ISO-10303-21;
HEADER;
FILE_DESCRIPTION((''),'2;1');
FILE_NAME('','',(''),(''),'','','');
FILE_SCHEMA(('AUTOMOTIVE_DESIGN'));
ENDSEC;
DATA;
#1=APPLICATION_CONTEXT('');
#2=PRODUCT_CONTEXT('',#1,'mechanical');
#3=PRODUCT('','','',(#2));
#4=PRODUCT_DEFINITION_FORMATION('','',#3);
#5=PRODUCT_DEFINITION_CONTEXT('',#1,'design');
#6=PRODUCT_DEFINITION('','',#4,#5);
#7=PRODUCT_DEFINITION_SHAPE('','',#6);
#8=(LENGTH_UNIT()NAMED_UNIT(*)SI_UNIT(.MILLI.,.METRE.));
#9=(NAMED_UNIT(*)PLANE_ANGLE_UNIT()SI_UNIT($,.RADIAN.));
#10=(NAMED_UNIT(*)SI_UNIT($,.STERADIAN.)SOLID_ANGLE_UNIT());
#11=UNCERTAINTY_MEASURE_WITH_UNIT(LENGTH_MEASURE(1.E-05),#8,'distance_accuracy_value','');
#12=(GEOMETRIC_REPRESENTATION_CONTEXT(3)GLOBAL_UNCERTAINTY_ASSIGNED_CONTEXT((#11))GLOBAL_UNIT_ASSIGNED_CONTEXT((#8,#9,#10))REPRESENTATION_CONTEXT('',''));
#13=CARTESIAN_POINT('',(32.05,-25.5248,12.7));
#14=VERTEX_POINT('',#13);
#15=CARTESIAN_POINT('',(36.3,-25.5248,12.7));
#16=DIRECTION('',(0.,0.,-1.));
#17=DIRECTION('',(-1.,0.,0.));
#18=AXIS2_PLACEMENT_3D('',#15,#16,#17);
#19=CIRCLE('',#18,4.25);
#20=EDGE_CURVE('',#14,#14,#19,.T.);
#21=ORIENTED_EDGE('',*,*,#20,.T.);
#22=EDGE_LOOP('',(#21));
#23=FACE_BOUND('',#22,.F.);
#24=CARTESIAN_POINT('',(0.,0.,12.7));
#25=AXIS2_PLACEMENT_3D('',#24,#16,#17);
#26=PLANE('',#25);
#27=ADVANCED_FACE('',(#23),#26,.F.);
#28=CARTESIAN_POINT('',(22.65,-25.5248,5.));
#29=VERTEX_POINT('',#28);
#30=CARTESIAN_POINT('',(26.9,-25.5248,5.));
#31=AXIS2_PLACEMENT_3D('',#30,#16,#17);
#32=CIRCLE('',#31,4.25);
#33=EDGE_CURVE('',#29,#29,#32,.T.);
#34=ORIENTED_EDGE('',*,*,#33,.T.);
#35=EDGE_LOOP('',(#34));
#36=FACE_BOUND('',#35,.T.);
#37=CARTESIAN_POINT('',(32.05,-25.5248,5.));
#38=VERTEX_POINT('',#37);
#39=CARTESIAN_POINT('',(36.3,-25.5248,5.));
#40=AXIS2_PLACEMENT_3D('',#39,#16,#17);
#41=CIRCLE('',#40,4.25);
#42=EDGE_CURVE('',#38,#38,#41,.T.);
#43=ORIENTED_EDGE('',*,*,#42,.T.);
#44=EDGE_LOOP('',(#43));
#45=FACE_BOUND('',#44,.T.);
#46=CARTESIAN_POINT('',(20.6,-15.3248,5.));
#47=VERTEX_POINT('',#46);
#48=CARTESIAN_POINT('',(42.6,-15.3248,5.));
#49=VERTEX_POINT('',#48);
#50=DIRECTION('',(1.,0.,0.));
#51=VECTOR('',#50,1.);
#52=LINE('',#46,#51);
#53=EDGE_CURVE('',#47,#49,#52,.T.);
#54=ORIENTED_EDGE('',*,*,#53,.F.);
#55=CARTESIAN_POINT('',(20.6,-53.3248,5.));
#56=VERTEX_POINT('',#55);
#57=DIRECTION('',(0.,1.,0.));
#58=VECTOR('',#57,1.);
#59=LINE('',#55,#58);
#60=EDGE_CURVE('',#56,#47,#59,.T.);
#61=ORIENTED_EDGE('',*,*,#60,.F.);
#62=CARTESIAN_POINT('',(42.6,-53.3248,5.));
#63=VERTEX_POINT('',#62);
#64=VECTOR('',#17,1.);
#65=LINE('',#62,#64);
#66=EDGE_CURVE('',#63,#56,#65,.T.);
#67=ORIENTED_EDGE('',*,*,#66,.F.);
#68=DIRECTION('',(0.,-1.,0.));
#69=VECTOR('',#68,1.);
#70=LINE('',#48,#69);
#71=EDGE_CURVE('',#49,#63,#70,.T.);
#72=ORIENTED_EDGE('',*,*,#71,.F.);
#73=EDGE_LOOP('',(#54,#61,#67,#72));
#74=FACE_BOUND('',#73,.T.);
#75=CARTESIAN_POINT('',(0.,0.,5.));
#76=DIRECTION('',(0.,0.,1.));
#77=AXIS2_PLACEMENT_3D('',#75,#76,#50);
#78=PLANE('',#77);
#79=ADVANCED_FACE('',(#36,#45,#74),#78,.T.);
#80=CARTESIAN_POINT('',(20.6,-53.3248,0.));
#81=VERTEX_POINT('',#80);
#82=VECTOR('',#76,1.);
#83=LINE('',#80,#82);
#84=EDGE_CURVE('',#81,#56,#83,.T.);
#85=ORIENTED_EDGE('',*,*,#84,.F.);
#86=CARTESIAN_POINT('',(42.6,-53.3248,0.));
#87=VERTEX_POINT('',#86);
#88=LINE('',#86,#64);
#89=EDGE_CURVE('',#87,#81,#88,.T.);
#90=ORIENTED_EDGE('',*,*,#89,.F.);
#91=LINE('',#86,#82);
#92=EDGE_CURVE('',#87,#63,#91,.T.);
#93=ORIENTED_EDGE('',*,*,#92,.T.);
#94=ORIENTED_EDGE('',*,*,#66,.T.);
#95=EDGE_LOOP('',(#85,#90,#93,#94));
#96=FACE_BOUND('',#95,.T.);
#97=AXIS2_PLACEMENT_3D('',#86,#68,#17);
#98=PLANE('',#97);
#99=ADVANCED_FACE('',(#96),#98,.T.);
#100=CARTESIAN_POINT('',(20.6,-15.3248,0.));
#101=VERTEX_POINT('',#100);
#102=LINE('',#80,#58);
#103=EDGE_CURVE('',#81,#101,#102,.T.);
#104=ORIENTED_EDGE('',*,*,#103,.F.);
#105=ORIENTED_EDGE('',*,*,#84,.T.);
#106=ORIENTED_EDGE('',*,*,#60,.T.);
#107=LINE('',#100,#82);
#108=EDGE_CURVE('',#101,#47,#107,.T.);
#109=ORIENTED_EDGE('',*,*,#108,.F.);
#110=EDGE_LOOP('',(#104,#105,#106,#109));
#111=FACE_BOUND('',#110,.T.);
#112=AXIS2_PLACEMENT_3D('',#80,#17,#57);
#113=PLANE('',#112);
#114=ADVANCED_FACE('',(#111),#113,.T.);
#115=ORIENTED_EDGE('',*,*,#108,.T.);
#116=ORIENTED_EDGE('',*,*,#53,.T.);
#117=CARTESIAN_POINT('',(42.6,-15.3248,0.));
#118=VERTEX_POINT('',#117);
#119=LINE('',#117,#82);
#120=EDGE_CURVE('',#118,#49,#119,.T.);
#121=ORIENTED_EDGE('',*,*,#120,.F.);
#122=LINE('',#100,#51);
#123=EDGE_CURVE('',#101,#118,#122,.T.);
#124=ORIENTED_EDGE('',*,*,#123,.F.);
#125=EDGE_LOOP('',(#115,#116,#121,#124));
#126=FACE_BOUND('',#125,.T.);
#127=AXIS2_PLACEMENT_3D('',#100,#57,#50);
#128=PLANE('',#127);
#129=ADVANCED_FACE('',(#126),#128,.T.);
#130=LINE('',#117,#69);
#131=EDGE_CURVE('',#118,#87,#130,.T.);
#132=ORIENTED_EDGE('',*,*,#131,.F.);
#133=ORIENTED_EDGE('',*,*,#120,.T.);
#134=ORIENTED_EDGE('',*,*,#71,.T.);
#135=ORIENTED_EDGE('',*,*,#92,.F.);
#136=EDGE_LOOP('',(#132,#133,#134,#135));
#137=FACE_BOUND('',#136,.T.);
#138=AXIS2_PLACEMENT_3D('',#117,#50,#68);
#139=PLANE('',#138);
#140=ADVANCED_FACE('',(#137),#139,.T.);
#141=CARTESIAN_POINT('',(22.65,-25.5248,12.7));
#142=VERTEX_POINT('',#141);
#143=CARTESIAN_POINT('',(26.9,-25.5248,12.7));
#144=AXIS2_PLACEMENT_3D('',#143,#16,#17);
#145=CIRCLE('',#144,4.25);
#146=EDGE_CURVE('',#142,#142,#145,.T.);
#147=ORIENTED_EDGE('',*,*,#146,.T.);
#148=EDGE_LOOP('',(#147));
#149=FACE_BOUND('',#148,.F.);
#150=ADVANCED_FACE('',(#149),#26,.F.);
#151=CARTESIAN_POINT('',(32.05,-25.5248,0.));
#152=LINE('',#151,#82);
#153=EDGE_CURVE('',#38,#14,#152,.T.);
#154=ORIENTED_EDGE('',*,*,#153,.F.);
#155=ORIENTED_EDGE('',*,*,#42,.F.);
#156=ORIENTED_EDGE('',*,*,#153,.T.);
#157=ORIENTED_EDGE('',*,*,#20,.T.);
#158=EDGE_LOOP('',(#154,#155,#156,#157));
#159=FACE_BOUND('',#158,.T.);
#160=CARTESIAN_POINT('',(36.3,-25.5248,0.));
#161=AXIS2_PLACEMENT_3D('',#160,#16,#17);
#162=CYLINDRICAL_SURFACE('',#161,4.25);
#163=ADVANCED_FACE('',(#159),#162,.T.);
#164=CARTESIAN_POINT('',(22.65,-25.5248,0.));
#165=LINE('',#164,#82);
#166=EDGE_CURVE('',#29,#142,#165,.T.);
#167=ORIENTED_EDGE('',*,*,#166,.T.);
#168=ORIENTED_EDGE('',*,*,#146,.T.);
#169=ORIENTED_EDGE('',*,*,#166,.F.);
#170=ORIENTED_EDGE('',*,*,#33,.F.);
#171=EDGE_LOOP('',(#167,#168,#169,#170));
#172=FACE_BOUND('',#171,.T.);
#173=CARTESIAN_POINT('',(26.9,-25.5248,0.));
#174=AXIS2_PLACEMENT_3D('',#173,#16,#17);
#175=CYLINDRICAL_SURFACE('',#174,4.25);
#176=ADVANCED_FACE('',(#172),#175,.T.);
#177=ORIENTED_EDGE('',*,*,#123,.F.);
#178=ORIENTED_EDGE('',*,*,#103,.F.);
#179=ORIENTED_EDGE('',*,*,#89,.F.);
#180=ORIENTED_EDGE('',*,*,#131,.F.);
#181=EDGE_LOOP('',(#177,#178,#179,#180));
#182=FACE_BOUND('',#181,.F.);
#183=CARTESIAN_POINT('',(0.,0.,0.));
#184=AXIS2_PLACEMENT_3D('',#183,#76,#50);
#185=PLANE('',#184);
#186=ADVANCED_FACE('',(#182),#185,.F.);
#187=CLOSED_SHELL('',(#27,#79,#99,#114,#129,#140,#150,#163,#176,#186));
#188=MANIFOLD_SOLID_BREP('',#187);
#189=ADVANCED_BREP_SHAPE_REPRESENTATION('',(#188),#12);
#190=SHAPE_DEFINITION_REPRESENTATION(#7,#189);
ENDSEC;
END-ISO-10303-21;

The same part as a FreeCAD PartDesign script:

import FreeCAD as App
import Part
import Sketcher

doc = App.newDocument("Part")
params = doc.addObject("Spreadsheet::Sheet", "Params")
for row, (alias, value) in enumerate([
    ("sketch1_diameter", "8.5 mm"),
    ("sketch1_width", "22 mm"),
    ("sketch1_height", "38 mm"),
    ("pad1_length", "5 mm"),
    ("sketch2_diameter", "8.5 mm"),
    ("pad2_length", "12.7 mm"),
], start=1):
    params.set(f"A{row}", alias)
    params.set(f"B{row}", "=" + value)
    params.setAlias(f"B{row}", alias)

body = doc.addObject("PartDesign::Body", "Body")

# Sketch on XY plane
sketch1 = body.newObject("Sketcher::SketchObject", "Sketch")
sketch1.AttachmentSupport = (doc.getObject("XY_Plane"), [""])
sketch1.MapMode = "FlatFace"
sketch1.addGeometry(Part.LineSegment(App.Vector(42.6, -15.3, 0), App.Vector(20.6, -15.3, 0)), False)
sketch1.addGeometry(Part.LineSegment(App.Vector(20.6, -15.3, 0), App.Vector(20.6, -53.3, 0)), False)
sketch1.addGeometry(Part.LineSegment(App.Vector(20.6, -53.3, 0), App.Vector(42.6, -53.3, 0)), False)
sketch1.addGeometry(Part.LineSegment(App.Vector(42.6, -53.3, 0), App.Vector(42.6, -15.3, 0)), False)
sketch1.addGeometry(Part.Circle(App.Vector(26.9, -25.5, 0), App.Vector(0, 0, 1), 4.2), False)
sketch1.addGeometry(Part.Circle(App.Vector(36.3, -25.5, 0), App.Vector(0, 0, 1), 4.2), False)
sketch1.addConstraint(Sketcher.Constraint("Coincident", 0, 2, 1, 1))
sketch1.addConstraint(Sketcher.Constraint("Coincident", 1, 2, 2, 1))
sketch1.addConstraint(Sketcher.Constraint("Coincident", 2, 2, 3, 1))
sketch1.addConstraint(Sketcher.Constraint("Coincident", 3, 2, 0, 1))
sketch1.addConstraint(Sketcher.Constraint("Horizontal", 0))
sketch1.addConstraint(Sketcher.Constraint("Vertical", 1))
sketch1.addConstraint(Sketcher.Constraint("Horizontal", 2))
sketch1.addConstraint(Sketcher.Constraint("Vertical", 3))
sketch1.addConstraint(Sketcher.Constraint("Equal", 4, 5))
sketch1.addConstraint(Sketcher.Constraint("Horizontal", 4, 3, 5, 3))
sketch1.addConstraint(Sketcher.Constraint("Diameter", 4, 8.5))
sketch1.addConstraint(Sketcher.Constraint("DistanceX", 0, 2, 0, 1, 22.0))
sketch1.addConstraint(Sketcher.Constraint("DistanceY", 1, 2, 1, 1, 38.0))
sketch1.addConstraint(Sketcher.Constraint("DistanceX", -1, 1, 0, 2, 20.6))
sketch1.addConstraint(Sketcher.Constraint("DistanceX", 0, 2, 4, 3, 6.3))
sketch1.addConstraint(Sketcher.Constraint("DistanceY", 4, 3, 0, 2, 10.2))
sketch1.addConstraint(Sketcher.Constraint("DistanceX", 5, 3, 2, 2, 6.3))
sketch1.addConstraint(Sketcher.Constraint("DistanceY", 0, 2, -1, 1, 15.3248))
sketch1.setExpression("Constraints[10]", "Params.sketch1_diameter")
sketch1.setExpression("Constraints[11]", "Params.sketch1_width")
sketch1.setExpression("Constraints[12]", "Params.sketch1_height")
pad1 = body.newObject("PartDesign::Pad", "Pad")
pad1.Profile = sketch1
pad1.setExpression("Length", "Params.pad1_length")

# Sketch on XY plane
sketch2 = body.newObject("Sketcher::SketchObject", "Sketch001")
sketch2.AttachmentSupport = (doc.getObject("XY_Plane"), [""])
sketch2.MapMode = "FlatFace"
sketch2.addGeometry(Part.Circle(App.Vector(36.3, -25.5, 0), App.Vector(0, 0, 1), 4.2), False)
sketch2.addGeometry(Part.Circle(App.Vector(26.9, -25.5, 0), App.Vector(0, 0, 1), 4.2), False)
sketch2.addConstraint(Sketcher.Constraint("Equal", 0, 1))
sketch2.addConstraint(Sketcher.Constraint("Horizontal", 0, 3, 1, 3))
sketch2.addConstraint(Sketcher.Constraint("Diameter", 0, 8.5))
sketch2.addConstraint(Sketcher.Constraint("DistanceX", -1, 1, 0, 3, 36.3))
sketch2.addConstraint(Sketcher.Constraint("DistanceX", -1, 1, 1, 3, 26.9))
sketch2.addConstraint(Sketcher.Constraint("DistanceY", 0, 3, -1, 1, 25.5248))
sketch2.setExpression("Constraints[2]", "Params.sketch2_diameter")
pad2 = body.newObject("PartDesign::Pad", "Pad001")
pad2.Profile = sketch2
pad2.setExpression("Length", "Params.pad2_length")

doc.recompute()
